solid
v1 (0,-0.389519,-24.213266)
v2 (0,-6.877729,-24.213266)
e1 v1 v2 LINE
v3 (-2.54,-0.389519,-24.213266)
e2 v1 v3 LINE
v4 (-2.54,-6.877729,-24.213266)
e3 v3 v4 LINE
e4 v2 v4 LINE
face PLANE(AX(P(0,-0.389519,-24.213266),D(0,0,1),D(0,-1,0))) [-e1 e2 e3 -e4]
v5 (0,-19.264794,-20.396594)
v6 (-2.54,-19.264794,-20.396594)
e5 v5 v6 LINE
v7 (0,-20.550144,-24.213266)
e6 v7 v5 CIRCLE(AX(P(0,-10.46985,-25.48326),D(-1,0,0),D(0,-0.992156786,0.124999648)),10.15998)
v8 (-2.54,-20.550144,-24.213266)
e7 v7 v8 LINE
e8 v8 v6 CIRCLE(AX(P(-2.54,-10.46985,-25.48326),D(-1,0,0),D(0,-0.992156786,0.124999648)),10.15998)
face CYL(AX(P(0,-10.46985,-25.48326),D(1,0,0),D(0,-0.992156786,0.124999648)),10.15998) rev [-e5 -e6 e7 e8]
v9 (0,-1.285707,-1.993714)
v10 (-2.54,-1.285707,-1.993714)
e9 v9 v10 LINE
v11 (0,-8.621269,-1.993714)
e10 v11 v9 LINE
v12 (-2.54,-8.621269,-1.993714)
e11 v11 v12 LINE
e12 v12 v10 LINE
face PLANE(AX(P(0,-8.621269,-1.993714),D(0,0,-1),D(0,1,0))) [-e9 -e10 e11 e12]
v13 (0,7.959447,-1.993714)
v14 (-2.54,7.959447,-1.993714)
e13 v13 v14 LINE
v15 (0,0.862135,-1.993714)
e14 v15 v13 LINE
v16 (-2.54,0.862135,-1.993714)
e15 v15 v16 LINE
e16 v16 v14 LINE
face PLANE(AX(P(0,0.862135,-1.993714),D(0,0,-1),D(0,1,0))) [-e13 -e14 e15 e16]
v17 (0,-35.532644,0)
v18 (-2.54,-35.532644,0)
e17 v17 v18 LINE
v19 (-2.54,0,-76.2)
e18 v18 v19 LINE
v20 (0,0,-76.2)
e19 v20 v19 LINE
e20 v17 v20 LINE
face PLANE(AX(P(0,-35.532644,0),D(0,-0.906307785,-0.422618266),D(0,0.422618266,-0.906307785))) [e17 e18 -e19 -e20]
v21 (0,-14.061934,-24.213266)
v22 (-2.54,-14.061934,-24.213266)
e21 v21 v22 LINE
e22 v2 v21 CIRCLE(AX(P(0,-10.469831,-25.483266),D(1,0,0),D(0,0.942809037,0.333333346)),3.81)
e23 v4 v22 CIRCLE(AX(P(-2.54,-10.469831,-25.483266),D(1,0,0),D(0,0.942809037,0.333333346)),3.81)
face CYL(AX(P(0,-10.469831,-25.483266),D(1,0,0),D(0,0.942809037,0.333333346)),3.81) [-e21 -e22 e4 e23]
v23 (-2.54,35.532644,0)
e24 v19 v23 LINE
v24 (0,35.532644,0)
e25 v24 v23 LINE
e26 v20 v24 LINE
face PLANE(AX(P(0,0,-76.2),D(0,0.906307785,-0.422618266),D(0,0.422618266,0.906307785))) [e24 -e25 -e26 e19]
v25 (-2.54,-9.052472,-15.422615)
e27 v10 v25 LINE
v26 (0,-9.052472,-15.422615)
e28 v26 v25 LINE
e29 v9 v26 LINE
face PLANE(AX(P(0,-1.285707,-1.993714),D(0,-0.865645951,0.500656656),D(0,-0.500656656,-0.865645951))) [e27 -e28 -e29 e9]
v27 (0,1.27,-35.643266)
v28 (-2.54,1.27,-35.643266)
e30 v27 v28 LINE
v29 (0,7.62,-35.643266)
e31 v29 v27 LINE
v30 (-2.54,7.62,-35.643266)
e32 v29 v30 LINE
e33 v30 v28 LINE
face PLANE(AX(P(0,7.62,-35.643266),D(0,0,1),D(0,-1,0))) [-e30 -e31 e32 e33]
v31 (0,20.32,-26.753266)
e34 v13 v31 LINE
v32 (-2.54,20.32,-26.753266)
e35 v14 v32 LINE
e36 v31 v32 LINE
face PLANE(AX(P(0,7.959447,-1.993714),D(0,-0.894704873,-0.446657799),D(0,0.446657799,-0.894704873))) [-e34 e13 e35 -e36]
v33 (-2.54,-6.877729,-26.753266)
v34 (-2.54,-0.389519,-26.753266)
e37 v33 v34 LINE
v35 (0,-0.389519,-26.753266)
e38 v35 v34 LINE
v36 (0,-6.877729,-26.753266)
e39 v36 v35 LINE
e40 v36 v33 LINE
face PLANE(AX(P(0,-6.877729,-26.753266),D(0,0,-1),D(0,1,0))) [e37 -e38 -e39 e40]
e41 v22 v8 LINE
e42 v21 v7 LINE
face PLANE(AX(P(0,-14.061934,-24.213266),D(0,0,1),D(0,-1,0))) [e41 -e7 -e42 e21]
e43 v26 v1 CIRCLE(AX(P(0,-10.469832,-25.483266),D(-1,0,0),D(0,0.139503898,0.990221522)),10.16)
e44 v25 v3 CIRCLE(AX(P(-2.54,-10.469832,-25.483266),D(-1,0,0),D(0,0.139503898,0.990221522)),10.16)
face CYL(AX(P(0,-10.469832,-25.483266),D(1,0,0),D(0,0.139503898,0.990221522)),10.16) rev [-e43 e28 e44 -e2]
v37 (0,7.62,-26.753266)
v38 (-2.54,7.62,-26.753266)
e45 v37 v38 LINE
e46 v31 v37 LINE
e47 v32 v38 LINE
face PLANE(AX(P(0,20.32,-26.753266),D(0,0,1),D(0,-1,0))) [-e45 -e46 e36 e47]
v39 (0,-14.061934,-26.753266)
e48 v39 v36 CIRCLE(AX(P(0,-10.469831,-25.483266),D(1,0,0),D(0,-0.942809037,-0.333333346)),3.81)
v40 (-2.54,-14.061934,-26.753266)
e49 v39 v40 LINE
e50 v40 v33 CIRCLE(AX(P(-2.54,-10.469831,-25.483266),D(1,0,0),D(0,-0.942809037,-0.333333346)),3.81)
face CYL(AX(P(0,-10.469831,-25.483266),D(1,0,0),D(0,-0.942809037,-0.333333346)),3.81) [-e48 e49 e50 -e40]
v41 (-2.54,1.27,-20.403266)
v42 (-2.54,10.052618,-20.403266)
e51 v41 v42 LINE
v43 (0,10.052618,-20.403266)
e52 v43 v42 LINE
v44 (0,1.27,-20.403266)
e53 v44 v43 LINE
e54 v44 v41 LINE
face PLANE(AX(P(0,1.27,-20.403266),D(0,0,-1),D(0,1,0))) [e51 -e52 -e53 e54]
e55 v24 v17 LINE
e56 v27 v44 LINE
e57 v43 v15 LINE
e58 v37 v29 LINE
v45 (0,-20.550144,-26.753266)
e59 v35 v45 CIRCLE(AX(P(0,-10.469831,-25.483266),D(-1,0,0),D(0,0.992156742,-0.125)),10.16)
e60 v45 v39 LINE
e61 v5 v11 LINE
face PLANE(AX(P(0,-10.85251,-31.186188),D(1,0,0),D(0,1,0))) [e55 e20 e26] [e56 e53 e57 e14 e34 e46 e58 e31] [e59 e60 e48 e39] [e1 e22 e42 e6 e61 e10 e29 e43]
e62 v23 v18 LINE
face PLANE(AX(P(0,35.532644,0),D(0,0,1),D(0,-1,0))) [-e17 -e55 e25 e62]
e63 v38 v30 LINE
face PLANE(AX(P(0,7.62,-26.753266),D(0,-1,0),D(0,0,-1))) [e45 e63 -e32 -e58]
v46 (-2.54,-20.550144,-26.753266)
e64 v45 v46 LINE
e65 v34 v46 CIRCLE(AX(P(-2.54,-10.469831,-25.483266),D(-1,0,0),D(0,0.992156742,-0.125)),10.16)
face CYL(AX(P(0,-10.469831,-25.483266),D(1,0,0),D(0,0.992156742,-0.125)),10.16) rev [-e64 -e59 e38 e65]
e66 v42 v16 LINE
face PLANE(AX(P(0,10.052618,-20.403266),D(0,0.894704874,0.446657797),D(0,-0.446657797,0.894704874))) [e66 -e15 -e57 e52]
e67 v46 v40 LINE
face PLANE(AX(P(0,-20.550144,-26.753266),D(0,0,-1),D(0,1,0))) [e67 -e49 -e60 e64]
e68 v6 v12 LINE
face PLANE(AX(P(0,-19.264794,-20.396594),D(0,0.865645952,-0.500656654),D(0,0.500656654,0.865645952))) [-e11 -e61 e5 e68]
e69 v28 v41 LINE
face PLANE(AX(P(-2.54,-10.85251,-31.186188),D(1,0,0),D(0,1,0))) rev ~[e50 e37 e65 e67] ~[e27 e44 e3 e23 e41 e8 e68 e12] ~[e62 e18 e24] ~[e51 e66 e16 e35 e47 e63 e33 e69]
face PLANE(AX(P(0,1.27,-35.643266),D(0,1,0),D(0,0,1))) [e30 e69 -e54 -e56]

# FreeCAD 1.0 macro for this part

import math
import FreeCAD as App
import Part
import Sketcher
from FreeCAD import Vector
Q = App.Units.Quantity


def add_polygon(sketch, points):
    """Adds a closed chain of lines whose ends are joined by coincident constraints."""
    first, n = sketch.GeometryCount, len(points)
    for a, b in zip(points, points[1:] + points[:1]):
        sketch.addGeometry(Part.LineSegment(App.Vector(*a, 0), App.Vector(*b, 0)), False)
    for i in range(n):
        sketch.addConstraint(Sketcher.Constraint("Coincident", first + i, 2, first + (i + 1) % n, 1))

doc = App.newDocument("Part")
params = doc.addObject("Spreadsheet::Sheet", "Params")
for row, (alias, value) in enumerate([
    ("sketch1_radius", "0.4 in"),
    ("sketch1_radius2", "0.15 in"),
    ("sketch1_width", "0.5 in"),
    ("sketch1_height", "0.6 in"),
    ("sketch1_width2", "0.25 in"),
    ("pad1_length", "0.1 in"),
], start=1):
    params.set(f"A{row}", alias)
    params.set(f"B{row}", "=" + value)
    params.setAlias(f"B{row}", alias)

body = doc.addObject("PartDesign::Body", "Body")

sketch1 = body.newObject("Sketcher::SketchObject", "Sketch")
sketch1.AttachmentSupport = (doc.getObject("YZ_Plane"), [""])
sketch1.MapMode = "FlatFace"
add_polygon(sketch1, [(-35.5, 0), (0, -76.2), (35.5, 0)])
sketch1.addGeometry(Part.ArcOfCircle(Part.Circle(Vector(-10.5, -25.5, 0), Vector(0, 0, 1), 10.2), math.radians(-173), math.radians(-7)), False)
sketch1.addGeometry(Part.LineSegment(Vector(-20.6, -26.8, 0), Vector(-14.1, -26.8, 0)), False)
sketch1.addGeometry(Part.ArcOfCircle(Part.Circle(Vector(-10.5, -25.5, 0), Vector(0, 0, 1), 3.8), math.radians(-161), math.radians(-19)), False)
sketch1.addGeometry(Part.LineSegment(Vector(-6.9, -26.8, 0), Vector(-0.4, -26.8, 0)), False)
sketch1.addGeometry(Part.ArcOfCircle(Part.Circle(Vector(-10.5, -25.5, 0), Vector(0, 0, 1), 10.2), math.radians(150), math.radians(173)), False)
sketch1.addGeometry(Part.LineSegment(Vector(-19.3, -20.4, 0), Vector(-8.6, -2, 0)), False)
sketch1.addGeometry(Part.LineSegment(Vector(-8.6, -2, 0), Vector(-1.3, -2, 0)), False)
sketch1.addGeometry(Part.LineSegment(Vector(-1.3, -2, 0), Vector(-9.1, -15.4, 0)), False)
sketch1.addGeometry(Part.ArcOfCircle(Part.Circle(Vector(-10.5, -25.5, 0), Vector(0, 0, 1), 10.2), math.radians(7), math.radians(82)), False)
sketch1.addGeometry(Part.LineSegment(Vector(-0.4, -24.2, 0), Vector(-6.9, -24.2, 0)), False)
sketch1.addGeometry(Part.ArcOfCircle(Part.Circle(Vector(-10.5, -25.5, 0), Vector(0, 0, 1), 3.8), math.radians(19), math.radians(161)), False)
sketch1.addGeometry(Part.LineSegment(Vector(-14.1, -24.2, 0), Vector(-20.6, -24.2, 0)), False)
add_polygon(sketch1, [(10.1, -20.4), (0.9, -2), (8, -2), (20.3, -26.8), (7.6, -26.8), (7.6, -35.6), (1.3, -35.6), (1.3, -20.4)])
sketch1.addConstraint([
    Sketcher.Constraint("Coincident", 3, 1, 4, 1),
    Sketcher.Constraint("Coincident", 4, 2, 5, 1),
    Sketcher.Constraint("Coincident", 5, 2, 6, 1),
    Sketcher.Constraint("Coincident", 6, 2, 3, 2),
    Sketcher.Constraint("Tangent", 7, 1, 8, 1),
    Sketcher.Constraint("Coincident", 8, 2, 9, 1),
    Sketcher.Constraint("Coincident", 9, 2, 10, 1),
    Sketcher.Constraint("Coincident", 10, 2, 11, 2),
    Sketcher.Constraint("Coincident", 11, 1, 12, 1),
    Sketcher.Constraint("Coincident", 12, 2, 13, 1),
    Sketcher.Constraint("Coincident", 13, 2, 14, 1),
    Sketcher.Constraint("Coincident", 14, 2, 7, 2),
    Sketcher.Constraint("Horizontal", 2),
    Sketcher.Constraint("Horizontal", 4),
    Sketcher.Constraint("Horizontal", 6),
    Sketcher.Constraint("Horizontal", 9),
    Sketcher.Constraint("Horizontal", 12),
    Sketcher.Constraint("Horizontal", 14),
    Sketcher.Constraint("Horizontal", 16),
    Sketcher.Constraint("Horizontal", 18),
    Sketcher.Constraint("Vertical", 19),
    Sketcher.Constraint("Horizontal", 20),
    Sketcher.Constraint("Vertical", 21),
    Sketcher.Constraint("Horizontal", 22),
    Sketcher.Constraint("Coincident", 5, 3, 3, 3),
    Sketcher.Constraint("Coincident", 11, 3, 3, 3),
    Sketcher.Constraint("Coincident", 13, 3, 3, 3),
    Sketcher.Constraint("Equal", 3, 11),
    Sketcher.Constraint("Equal", 5, 13),
    Sketcher.Constraint("Symmetric", 1, 2, 2, 2, -1, 1),
    Sketcher.Constraint("PointOnObject", 0, 2, -2),
    Sketcher.Constraint("Parallel", 8, 10),
    Sketcher.Constraint("Parallel", 15, 17),
    Sketcher.Constraint("Horizontal", 4, 2, 5, 2),
    Sketcher.Constraint("Horizontal", 12, 2, 13, 2),
    Sketcher.Constraint("Horizontal", 9, 2, 15, 2),
    Sketcher.Constraint("Horizontal", 6, 2, 17, 2),
    Sketcher.Constraint("Vertical", 6, 2, 11, 1),
    Sketcher.Constraint("Vertical", 3, 1, 14, 2),
    Sketcher.Constraint("Radius", 3, Q("0.4 in")),
    Sketcher.Constraint("Radius", 5, Q("0.15 in")),
    Sketcher.Constraint("DistanceX", 18, 2, 18, 1, Q("0.5 in")),
    Sketcher.Constraint("DistanceY", 21, 1, 21, 2, Q("0.6 in")),
    Sketcher.Constraint("DistanceY", 0, 2, -1, 1, Q("3 in")),
    Sketcher.Constraint("Angle", 0, Q("-65 deg")),
    Sketcher.Constraint("DistanceX", 20, 2, 20, 1, Q("0.25 in")),
    Sketcher.Constraint("DistanceY", 19, 2, 19, 1, Q("0.35 in")),
    Sketcher.Constraint("DistanceX", -1, 1, 17, 2, Q("0.8 in")),
    Sketcher.Constraint("DistanceY", 6, 2, 11, 1, Q("0.1 in")),
    Sketcher.Constraint("Radius", 7, Q("10.15998 mm")),
    Sketcher.Constraint("DistanceX", 9, 1, 9, 2, Q("7.335562 mm")),
    Sketcher.Constraint("DistanceX", 16, 1, 16, 2, Q("7.097312 mm")),
    Sketcher.Constraint("DistanceX", 22, 1, 22, 2, Q("8.782618 mm")),
    Sketcher.Constraint("DistanceY", 10, 2, 15, 2, Q("13.428901 mm")),
    Sketcher.Constraint("Distance", 8, Q("21.25913 mm")),
    Sketcher.Constraint("Distance", 17, Q("27.673429 mm")),
    Sketcher.Constraint("DistanceX", 3, 3, -1, 1, Q("10.469831 mm")),
    Sketcher.Constraint("DistanceY", 7, 3, -1, 1, Q("25.48326 mm")),
])
sketch1.setExpression("Constraints[50]", "Params.sketch1_radius")
sketch1.setExpression("Constraints[51]", "Params.sketch1_radius2")
sketch1.setExpression("Constraints[52]", "Params.sketch1_width")
sketch1.setExpression("Constraints[53]", "Params.sketch1_height")
sketch1.setExpression("Constraints[56]", "Params.sketch1_width2")
pad1 = body.newObject("PartDesign::Pad", "Pad")
pad1.Profile = sketch1
pad1.setExpression("Length", "Params.pad1_length")
pad1.Reversed = True

doc.recompute()
